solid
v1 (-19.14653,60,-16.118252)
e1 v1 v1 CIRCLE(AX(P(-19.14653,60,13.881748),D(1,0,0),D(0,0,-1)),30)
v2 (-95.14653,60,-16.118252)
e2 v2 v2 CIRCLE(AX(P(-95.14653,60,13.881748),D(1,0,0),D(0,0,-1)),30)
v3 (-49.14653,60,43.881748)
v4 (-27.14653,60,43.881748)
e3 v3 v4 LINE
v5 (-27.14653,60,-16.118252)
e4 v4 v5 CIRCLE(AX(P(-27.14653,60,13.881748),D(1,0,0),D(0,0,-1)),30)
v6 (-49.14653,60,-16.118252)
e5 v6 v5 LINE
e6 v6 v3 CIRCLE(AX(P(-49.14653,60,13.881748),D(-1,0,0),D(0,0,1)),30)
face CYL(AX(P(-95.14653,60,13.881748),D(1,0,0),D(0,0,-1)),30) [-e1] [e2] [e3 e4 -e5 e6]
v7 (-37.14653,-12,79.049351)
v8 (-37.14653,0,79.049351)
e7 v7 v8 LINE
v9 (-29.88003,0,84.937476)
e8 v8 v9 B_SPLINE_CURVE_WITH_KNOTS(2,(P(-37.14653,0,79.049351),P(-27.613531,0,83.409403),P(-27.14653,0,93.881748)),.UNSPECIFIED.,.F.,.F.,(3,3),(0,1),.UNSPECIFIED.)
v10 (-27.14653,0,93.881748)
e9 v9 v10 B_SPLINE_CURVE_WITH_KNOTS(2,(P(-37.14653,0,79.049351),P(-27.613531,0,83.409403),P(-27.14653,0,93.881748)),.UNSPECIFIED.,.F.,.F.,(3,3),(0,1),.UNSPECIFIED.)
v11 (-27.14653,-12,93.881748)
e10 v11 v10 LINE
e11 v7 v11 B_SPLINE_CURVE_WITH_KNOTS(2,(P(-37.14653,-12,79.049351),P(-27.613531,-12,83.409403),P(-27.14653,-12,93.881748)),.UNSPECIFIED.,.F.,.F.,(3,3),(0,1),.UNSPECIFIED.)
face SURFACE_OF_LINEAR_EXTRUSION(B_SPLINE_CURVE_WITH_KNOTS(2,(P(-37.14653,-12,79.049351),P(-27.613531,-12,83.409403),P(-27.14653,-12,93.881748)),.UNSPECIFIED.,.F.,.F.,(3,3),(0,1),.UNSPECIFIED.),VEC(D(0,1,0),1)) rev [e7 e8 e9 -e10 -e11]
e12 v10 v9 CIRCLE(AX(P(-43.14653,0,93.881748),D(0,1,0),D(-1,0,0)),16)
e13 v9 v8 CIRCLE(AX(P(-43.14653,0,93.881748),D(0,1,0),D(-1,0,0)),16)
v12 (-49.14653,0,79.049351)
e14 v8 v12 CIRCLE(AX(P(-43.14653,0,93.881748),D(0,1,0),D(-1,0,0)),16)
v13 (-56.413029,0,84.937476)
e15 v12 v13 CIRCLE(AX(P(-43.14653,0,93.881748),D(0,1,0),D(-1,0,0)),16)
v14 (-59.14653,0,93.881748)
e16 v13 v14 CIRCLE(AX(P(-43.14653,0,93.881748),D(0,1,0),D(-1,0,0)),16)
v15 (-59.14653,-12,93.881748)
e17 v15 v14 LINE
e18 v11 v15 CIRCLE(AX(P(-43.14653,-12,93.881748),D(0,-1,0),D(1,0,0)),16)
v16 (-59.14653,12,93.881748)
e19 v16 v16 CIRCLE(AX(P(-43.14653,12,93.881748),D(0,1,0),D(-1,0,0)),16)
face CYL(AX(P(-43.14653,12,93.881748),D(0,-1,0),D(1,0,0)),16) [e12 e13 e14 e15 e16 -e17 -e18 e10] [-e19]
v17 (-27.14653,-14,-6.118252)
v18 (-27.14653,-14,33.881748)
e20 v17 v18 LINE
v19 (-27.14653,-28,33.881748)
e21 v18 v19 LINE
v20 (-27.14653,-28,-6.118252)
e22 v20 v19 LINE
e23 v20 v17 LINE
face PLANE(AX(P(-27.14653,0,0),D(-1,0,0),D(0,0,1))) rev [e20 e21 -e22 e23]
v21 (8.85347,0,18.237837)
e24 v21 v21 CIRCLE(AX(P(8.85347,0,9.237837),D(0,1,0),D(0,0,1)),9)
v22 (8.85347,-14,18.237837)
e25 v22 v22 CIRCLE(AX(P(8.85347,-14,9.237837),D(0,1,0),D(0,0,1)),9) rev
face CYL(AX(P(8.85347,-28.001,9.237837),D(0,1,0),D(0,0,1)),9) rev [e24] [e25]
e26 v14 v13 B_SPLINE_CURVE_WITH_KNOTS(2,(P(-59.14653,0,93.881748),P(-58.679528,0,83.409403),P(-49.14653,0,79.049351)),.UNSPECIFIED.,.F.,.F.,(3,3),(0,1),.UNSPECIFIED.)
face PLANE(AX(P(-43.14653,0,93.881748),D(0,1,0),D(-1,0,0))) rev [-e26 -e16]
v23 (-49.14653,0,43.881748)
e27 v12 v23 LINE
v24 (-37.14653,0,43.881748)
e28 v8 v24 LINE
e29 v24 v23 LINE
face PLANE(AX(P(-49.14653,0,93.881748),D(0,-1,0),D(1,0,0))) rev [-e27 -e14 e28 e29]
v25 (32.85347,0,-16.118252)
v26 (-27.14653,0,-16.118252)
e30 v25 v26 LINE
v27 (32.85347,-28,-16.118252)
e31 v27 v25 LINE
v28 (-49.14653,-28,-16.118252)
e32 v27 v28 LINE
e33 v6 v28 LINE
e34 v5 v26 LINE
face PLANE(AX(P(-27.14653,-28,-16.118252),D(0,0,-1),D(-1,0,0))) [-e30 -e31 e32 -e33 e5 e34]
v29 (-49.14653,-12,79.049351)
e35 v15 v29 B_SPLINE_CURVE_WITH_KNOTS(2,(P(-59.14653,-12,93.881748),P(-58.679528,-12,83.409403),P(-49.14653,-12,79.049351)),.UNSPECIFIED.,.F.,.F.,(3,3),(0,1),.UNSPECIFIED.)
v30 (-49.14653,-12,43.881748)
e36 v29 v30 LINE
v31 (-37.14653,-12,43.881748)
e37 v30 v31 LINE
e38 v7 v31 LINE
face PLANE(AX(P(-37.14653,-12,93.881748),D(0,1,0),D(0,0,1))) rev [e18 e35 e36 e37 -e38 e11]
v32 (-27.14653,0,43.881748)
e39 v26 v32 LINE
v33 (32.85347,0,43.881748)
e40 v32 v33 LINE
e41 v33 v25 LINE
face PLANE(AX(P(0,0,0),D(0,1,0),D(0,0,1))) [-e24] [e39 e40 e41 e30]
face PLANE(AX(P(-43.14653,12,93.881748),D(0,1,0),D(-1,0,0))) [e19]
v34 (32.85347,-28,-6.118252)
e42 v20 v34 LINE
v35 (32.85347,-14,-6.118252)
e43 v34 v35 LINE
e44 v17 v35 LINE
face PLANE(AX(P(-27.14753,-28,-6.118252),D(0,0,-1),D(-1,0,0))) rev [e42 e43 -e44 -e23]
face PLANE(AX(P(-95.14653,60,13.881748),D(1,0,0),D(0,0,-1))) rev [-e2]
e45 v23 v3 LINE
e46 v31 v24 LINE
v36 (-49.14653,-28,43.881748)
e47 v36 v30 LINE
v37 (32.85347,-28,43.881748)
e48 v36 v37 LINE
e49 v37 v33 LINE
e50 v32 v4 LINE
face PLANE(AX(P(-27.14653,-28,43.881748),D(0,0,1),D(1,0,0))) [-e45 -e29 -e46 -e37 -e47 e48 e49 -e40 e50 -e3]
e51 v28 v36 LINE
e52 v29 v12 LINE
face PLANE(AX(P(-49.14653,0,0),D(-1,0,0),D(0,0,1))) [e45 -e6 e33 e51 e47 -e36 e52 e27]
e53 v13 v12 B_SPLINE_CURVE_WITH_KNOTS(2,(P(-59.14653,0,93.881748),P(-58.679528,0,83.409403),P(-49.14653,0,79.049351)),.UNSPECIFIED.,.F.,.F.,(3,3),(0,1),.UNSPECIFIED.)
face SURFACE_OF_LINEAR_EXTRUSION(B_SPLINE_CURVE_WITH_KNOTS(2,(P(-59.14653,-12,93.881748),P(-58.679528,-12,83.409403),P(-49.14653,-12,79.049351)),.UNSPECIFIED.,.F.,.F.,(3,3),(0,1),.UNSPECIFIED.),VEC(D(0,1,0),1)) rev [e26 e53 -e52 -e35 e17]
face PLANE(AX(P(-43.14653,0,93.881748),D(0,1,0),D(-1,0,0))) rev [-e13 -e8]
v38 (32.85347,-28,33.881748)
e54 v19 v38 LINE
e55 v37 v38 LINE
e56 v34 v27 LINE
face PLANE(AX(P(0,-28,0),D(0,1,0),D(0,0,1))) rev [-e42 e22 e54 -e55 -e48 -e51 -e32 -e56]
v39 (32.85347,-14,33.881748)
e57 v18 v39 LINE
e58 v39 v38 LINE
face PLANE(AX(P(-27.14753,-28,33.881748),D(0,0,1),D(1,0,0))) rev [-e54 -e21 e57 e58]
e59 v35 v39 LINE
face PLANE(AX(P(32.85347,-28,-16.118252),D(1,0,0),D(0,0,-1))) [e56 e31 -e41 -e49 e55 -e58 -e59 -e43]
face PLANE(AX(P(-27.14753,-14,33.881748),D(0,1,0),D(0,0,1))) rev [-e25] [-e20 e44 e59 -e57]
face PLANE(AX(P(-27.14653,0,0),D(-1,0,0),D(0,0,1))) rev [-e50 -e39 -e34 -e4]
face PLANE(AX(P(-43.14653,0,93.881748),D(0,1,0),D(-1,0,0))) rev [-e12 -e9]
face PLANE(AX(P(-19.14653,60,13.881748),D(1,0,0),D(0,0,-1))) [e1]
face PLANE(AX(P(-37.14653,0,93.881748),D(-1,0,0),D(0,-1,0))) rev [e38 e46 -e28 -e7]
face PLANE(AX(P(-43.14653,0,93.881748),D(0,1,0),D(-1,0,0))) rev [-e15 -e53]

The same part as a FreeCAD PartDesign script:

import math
import FreeCAD as App
import Part
import Sketcher
from FreeCAD import Vector


def add_polygon(sketch, points):
    """Adds a closed chain of lines whose ends are joined by coincident constraints."""
    first, n = sketch.GeometryCount, len(points)
    for a, b in zip(points, points[1:] + points[:1]):
        sketch.addGeometry(Part.LineSegment(App.Vector(*a, 0), App.Vector(*b, 0)), False)
    for i in range(n):
        sketch.addConstraint(Sketcher.Constraint("Coincident", first + i, 2, first + (i + 1) % n, 1))

doc = App.newDocument("Part")
body = doc.addObject("PartDesign::Body", "Body")

sketch1 = doc.addObject("Sketcher::SketchObject", "Sketch")
body.addObject(sketch1)
sketch1.AttachmentSupport = (doc.XZ_Plane, [""])
sketch1.MapMode = "FlatFace"
add_polygon(sketch1, [(-27, -16), (-27, 44), (33, 44), (33, -16)])
sketch1.addConstraint([
    Sketcher.Constraint("Vertical", 0),
    Sketcher.Constraint("Horizontal", 1),
    Sketcher.Constraint("Vertical", 2),
    Sketcher.Constraint("Horizontal", 3),
    Sketcher.Constraint("Equal", 3, 0),
    Sketcher.Constraint("DistanceX", 1, 1, 1, 2, 60.0),
    Sketcher.Constraint("DistanceX", 0, 2, -1, 1, 27.14653),
    Sketcher.Constraint("DistanceY", -1, 1, 0, 2, 43.881748),
])
pad1 = doc.addObject("PartDesign::Pad", "Pad")
body.addObject(pad1)
pad1.Profile = sketch1
pad1.Length = 28

sketch2 = doc.addObject("Sketcher::SketchObject", "Sketch001")
body.addObject(sketch2)
sketch2.AttachmentSupport = (doc.YZ_Plane, [""])
sketch2.MapMode = "FlatFace"
sketch2.AttachmentOffset = App.Placement(Vector(0, 0, 32.85347), App.Rotation())
add_polygon(sketch2, [(-14, 34), (-28, 34), (-28, -6), (-14, -6)])
sketch2.addConstraint([
    Sketcher.Constraint("Horizontal", 0),
    Sketcher.Constraint("Vertical", 1),
    Sketcher.Constraint("Horizontal", 2),
    Sketcher.Constraint("Vertical", 3),
    Sketcher.Constraint("DistanceX", 0, 2, 0, 1, 14.0),
    Sketcher.Constraint("DistanceY", 1, 2, 1, 1, 40.0),
    Sketcher.Constraint("DistanceX", 0, 2, -1, 1, 28.0),
    Sketcher.Constraint("DistanceY", -1, 1, 0, 2, 33.881748),
])
pocket1 = doc.addObject("PartDesign::Pocket", "Pocket")
body.addObject(pocket1)
pocket1.Profile = sketch2
pocket1.Type = "UpToFirst"

sketch3 = doc.addObject("Sketcher::SketchObject", "Sketch002")
body.addObject(sketch3)
sketch3.AttachmentSupport = (doc.XZ_Plane, [""])
sketch3.MapMode = "FlatFace"
sketch3.addGeometry(Part.Circle(Vector(9, 9, 0), Vector(0, 0, 1), 9), False)
sketch3.addConstraint([
    Sketcher.Constraint("Diameter", 0, 18.0),
    Sketcher.Constraint("DistanceX", -1, 1, 0, 3, 8.85347),
    Sketcher.Constraint("DistanceY", -1, 1, 0, 3, 9.237837),
])
pocket2 = doc.addObject("PartDesign::Pocket", "Pocket001")
body.addObject(pocket2)
pocket2.Profile = sketch3
pocket2.Type = "UpToFirst"
pocket2.Reversed = True
body2 = doc.addObject("PartDesign::Body", "Body001")

sketch4 = doc.addObject("Sketcher::SketchObject", "Sketch003")
body2.addObject(sketch4)
sketch4.AttachmentSupport = (doc.getObject("YZ_Plane001"), [""])
sketch4.MapMode = "FlatFace"
sketch4.AttachmentOffset = App.Placement(Vector(0, 0, -27.14653), App.Rotation())
add_polygon(sketch4, [(60, -16), (0, -16), (0, 44), (60, 44)])
sketch4.addConstraint([
    Sketcher.Constraint("Horizontal", 0),
    Sketcher.Constraint("Vertical", 1),
    Sketcher.Constraint("Horizontal", 2),
    Sketcher.Constraint("Vertical", 3),
    Sketcher.Constraint("PointOnObject", 0, 2, -2),
    Sketcher.Constraint("Equal", 2, 1),
    Sketcher.Constraint("DistanceX", 0, 2, 0, 1, 60.0),
    Sketcher.Constraint("DistanceY", 0, 2, -1, 1, 16.118252),
])
pad2 = doc.addObject("PartDesign::Pad", "Pad001")
body2.addObject(pad2)
pad2.Profile = sketch4
pad2.Length = 22
pad2.Reversed = True
body.AllowCompound = True
doc.recompute()

boolean = doc.addObject("PartDesign::Boolean", "Boolean")
body.addObject(boolean)
boolean.Type = "Fuse"
boolean.addObjects([body2])

sketch5 = doc.addObject("Sketcher::SketchObject", "Sketch004")
body.addObject(sketch5)
sketch5.AttachmentSupport = (doc.YZ_Plane, [""])
sketch5.MapMode = "FlatFace"
sketch5.AttachmentOffset = App.Placement(Vector(0, 0, -49.14653), App.Rotation())
add_polygon(sketch5, [(0, -16), (-28, -16), (-28, 44), (0, 44)])
sketch5.addConstraint([
    Sketcher.Constraint("Horizontal", 0),
    Sketcher.Constraint("Vertical", 1),
    Sketcher.Constraint("Horizontal", 2),
    Sketcher.Constraint("Vertical", 3),
    Sketcher.Constraint("PointOnObject", 2, 2, -2),
    Sketcher.Constraint("DistanceX", 0, 2, 0, 1, 28.0),
    Sketcher.Constraint("DistanceY", 1, 1, 1, 2, 60.0),
    Sketcher.Constraint("DistanceY", 0, 2, -1, 1, 16.118252),
])
pad3 = doc.addObject("PartDesign::Pad", "Pad002")
body.addObject(pad3)
pad3.Profile = sketch5
pad3.Length = 22

sketch6 = doc.addObject("Sketcher::SketchObject", "Sketch005")
body.addObject(sketch6)
sketch6.AttachmentSupport = (doc.YZ_Plane, [""])
sketch6.MapMode = "FlatFace"
sketch6.AttachmentOffset = App.Placement(Vector(0, 0, -27.14653), App.Rotation())
sketch6.addGeometry(Part.Circle(Vector(60, 14, 0), Vector(0, 0, 1), 30), False)
sketch6.addConstraint([
    Sketcher.Constraint("Diameter", 0, 60.0),
    Sketcher.Constraint("DistanceX", -1, 1, 0, 3, 60.0),
    Sketcher.Constraint("DistanceY", -1, 1, 0, 3, 13.881748),
])
pad4 = doc.addObject("PartDesign::Pad", "Pad003")
body.addObject(pad4)
pad4.Profile = sketch6
pad4.Length = 68
pad4.Reversed = True

sketch7 = doc.addObject("Sketcher::SketchObject", "Sketch006")
body.addObject(sketch7)
sketch7.AttachmentSupport = (doc.YZ_Plane, [""])
sketch7.MapMode = "FlatFace"
sketch7.AttachmentOffset = App.Placement(Vector(0, 0, -19.14653), App.Rotation())
sketch7.addGeometry(Part.Circle(Vector(60, 14, 0), Vector(0, 0, 1), 30), False)
sketch7.addConstraint([
    Sketcher.Constraint("Diameter", 0, 60.0),
    Sketcher.Constraint("DistanceX", -1, 1, 0, 3, 60.0),
    Sketcher.Constraint("DistanceY", -1, 1, 0, 3, 13.881748),
])
pad5 = doc.addObject("PartDesign::Pad", "Pad004")
body.addObject(pad5)
pad5.Profile = sketch7
pad5.Length = 8
pad5.Reversed = True

sketch8 = doc.addObject("Sketcher::SketchObject", "Sketch007")
body.addObject(sketch8)
sketch8.AttachmentSupport = (doc.XY_Plane, [""])
sketch8.MapMode = "FlatFace"
sketch8.AttachmentOffset = App.Placement(Vector(0, 0, 43.881748), App.Rotation())
add_polygon(sketch8, [(-49, 0), (-49, -12), (-37, -12), (-37, 0)])
sketch8.addConstraint([
    Sketcher.Constraint("Vertical", 0),
    Sketcher.Constraint("Horizontal", 1),
    Sketcher.Constraint("Vertical", 2),
    Sketcher.Constraint("Horizontal", 3),
    Sketcher.Constraint("PointOnObject", 2, 2, -1),
    Sketcher.Constraint("Equal", 3, 0),
    Sketcher.Constraint("DistanceX", 1, 1, 1, 2, 12.0),
    Sketcher.Constraint("DistanceX", 0, 2, -1, 1, 49.14653),
])
pad6 = doc.addObject("PartDesign::Pad", "Pad005")
body.addObject(pad6)
pad6.Profile = sketch8
pad6.Length = 50

sketch9 = doc.addObject("Sketcher::SketchObject", "Sketch008")
body.addObject(sketch9)
sketch9.AttachmentSupport = (doc.XZ_Plane, [""])
sketch9.MapMode = "FlatFace"
sketch9.addGeometry(Part.Circle(Vector(-43, 94, 0), Vector(0, 0, 1), 16), False)
sketch9.addConstraint([
    Sketcher.Constraint("Diameter", 0, 32.0),
    Sketcher.Constraint("DistanceX", 0, 3, -1, 1, 43.14653),
    Sketcher.Constraint("DistanceY", -1, 1, 0, 3, 93.881748),
])
pad7 = doc.addObject("PartDesign::Pad", "Pad006")
body.addObject(pad7)
pad7.Profile = sketch9
pad7.Length = 12
pad7.Reversed = True

sketch10 = doc.addObject("Sketcher::SketchObject", "Sketch009")
body.addObject(sketch10)
sketch10.AttachmentSupport = (doc.XZ_Plane, [""])
sketch10.MapMode = "FlatFace"
sketch10.AttachmentOffset = App.Placement(Vector(0, 0, 12), App.Rotation())
sketch10.addGeometry([
    Part.ArcOfCircle(Part.Circle(Vector(-43, 94, 0), Vector(0, 0, 1), 16), math.radians(0), math.radians(180)),
    Part.LineSegment(Vector(-59, 94, 0), Vector(-27, 94, 0)),
], False)
sketch10.addConstraint([
    Sketcher.Constraint("Coincident", 0, 1, 1, 2),
    Sketcher.Constraint("Coincident", 1, 1, 0, 2),
    Sketcher.Constraint("Horizontal", 1),
    Sketcher.Constraint("Radius", 0, 16.0),
    Sketcher.Constraint("DistanceX", 0, 3, -1, 1, 43.14653),
    Sketcher.Constraint("DistanceY", -1, 1, 0, 3, 93.881748),
    Sketcher.Constraint("DistanceY", -1, 1, 0, 1, 93.881748),
])
pad8 = doc.addObject("PartDesign::Pad", "Pad007")
body.addObject(pad8)
pad8.Profile = sketch10
pad8.Length = 12
pad8.Reversed = True

sketch11 = doc.addObject("Sketcher::SketchObject", "Sketch010")
body.addObject(sketch11)
sketch11.AttachmentSupport = (doc.XZ_Plane, [""])
sketch11.MapMode = "FlatFace"
sketch11.addGeometry([
    Part.LineSegment(Vector(-27.14653, 93.881748, 0), Vector(-37.14653, 93.881748, 0)),
    Part.LineSegment(Vector(-37.14653, 93.881748, 0), Vector(-37.14653, 79.049351, 0)),
    Part.BSplineCurve([Vector(-27.14653, 93.881748, 0), Vector(-27.613531, 83.409403, 0), Vector(-37.14653, 79.049351, 0)], [3, 3], [0, 1], False, 2, [1, 1, 1], False),
], False)
sketch11.addConstraint([
    Sketcher.Constraint("Block", 2),
    Sketcher.Constraint("Coincident", 0, 2, 1, 1),
    Sketcher.Constraint("Coincident", 1, 2, 2, 2),
    Sketcher.Constraint("Coincident", 2, 1, 0, 1),
    Sketcher.Constraint("Horizontal", 0),
    Sketcher.Constraint("Vertical", 1),
])
pad9 = doc.addObject("PartDesign::Pad", "Pad008")
body.addObject(pad9)
pad9.Profile = sketch11
pad9.Length = 12

sketch12 = doc.addObject("Sketcher::SketchObject", "Sketch011")
body.addObject(sketch12)
sketch12.AttachmentSupport = (doc.XZ_Plane, [""])
sketch12.MapMode = "FlatFace"
sketch12.addGeometry([
    Part.LineSegment(Vector(-49.14653, 93.881748, 0), Vector(-59.14653, 93.881748, 0)),
    Part.BSplineCurve([Vector(-59.14653, 93.881748, 0), Vector(-58.679528, 83.409403, 0), Vector(-49.14653, 79.049351, 0)], [3, 3], [0, 1], False, 2, [1, 1, 1], False),
    Part.LineSegment(Vector(-49.14653, 79.049351, 0), Vector(-49.14653, 93.881748, 0)),
], False)
sketch12.addConstraint([
    Sketcher.Constraint("Block", 1),
    Sketcher.Constraint("Coincident", 0, 2, 1, 1),
    Sketcher.Constraint("Coincident", 1, 2, 2, 1),
    Sketcher.Constraint("Coincident", 2, 2, 0, 1),
    Sketcher.Constraint("Horizontal", 0),
    Sketcher.Constraint("Vertical", 2),
])
pad10 = doc.addObject("PartDesign::Pad", "Pad009")
body.addObject(pad10)
pad10.Profile = sketch12
pad10.Length = 12

doc.recompute()
